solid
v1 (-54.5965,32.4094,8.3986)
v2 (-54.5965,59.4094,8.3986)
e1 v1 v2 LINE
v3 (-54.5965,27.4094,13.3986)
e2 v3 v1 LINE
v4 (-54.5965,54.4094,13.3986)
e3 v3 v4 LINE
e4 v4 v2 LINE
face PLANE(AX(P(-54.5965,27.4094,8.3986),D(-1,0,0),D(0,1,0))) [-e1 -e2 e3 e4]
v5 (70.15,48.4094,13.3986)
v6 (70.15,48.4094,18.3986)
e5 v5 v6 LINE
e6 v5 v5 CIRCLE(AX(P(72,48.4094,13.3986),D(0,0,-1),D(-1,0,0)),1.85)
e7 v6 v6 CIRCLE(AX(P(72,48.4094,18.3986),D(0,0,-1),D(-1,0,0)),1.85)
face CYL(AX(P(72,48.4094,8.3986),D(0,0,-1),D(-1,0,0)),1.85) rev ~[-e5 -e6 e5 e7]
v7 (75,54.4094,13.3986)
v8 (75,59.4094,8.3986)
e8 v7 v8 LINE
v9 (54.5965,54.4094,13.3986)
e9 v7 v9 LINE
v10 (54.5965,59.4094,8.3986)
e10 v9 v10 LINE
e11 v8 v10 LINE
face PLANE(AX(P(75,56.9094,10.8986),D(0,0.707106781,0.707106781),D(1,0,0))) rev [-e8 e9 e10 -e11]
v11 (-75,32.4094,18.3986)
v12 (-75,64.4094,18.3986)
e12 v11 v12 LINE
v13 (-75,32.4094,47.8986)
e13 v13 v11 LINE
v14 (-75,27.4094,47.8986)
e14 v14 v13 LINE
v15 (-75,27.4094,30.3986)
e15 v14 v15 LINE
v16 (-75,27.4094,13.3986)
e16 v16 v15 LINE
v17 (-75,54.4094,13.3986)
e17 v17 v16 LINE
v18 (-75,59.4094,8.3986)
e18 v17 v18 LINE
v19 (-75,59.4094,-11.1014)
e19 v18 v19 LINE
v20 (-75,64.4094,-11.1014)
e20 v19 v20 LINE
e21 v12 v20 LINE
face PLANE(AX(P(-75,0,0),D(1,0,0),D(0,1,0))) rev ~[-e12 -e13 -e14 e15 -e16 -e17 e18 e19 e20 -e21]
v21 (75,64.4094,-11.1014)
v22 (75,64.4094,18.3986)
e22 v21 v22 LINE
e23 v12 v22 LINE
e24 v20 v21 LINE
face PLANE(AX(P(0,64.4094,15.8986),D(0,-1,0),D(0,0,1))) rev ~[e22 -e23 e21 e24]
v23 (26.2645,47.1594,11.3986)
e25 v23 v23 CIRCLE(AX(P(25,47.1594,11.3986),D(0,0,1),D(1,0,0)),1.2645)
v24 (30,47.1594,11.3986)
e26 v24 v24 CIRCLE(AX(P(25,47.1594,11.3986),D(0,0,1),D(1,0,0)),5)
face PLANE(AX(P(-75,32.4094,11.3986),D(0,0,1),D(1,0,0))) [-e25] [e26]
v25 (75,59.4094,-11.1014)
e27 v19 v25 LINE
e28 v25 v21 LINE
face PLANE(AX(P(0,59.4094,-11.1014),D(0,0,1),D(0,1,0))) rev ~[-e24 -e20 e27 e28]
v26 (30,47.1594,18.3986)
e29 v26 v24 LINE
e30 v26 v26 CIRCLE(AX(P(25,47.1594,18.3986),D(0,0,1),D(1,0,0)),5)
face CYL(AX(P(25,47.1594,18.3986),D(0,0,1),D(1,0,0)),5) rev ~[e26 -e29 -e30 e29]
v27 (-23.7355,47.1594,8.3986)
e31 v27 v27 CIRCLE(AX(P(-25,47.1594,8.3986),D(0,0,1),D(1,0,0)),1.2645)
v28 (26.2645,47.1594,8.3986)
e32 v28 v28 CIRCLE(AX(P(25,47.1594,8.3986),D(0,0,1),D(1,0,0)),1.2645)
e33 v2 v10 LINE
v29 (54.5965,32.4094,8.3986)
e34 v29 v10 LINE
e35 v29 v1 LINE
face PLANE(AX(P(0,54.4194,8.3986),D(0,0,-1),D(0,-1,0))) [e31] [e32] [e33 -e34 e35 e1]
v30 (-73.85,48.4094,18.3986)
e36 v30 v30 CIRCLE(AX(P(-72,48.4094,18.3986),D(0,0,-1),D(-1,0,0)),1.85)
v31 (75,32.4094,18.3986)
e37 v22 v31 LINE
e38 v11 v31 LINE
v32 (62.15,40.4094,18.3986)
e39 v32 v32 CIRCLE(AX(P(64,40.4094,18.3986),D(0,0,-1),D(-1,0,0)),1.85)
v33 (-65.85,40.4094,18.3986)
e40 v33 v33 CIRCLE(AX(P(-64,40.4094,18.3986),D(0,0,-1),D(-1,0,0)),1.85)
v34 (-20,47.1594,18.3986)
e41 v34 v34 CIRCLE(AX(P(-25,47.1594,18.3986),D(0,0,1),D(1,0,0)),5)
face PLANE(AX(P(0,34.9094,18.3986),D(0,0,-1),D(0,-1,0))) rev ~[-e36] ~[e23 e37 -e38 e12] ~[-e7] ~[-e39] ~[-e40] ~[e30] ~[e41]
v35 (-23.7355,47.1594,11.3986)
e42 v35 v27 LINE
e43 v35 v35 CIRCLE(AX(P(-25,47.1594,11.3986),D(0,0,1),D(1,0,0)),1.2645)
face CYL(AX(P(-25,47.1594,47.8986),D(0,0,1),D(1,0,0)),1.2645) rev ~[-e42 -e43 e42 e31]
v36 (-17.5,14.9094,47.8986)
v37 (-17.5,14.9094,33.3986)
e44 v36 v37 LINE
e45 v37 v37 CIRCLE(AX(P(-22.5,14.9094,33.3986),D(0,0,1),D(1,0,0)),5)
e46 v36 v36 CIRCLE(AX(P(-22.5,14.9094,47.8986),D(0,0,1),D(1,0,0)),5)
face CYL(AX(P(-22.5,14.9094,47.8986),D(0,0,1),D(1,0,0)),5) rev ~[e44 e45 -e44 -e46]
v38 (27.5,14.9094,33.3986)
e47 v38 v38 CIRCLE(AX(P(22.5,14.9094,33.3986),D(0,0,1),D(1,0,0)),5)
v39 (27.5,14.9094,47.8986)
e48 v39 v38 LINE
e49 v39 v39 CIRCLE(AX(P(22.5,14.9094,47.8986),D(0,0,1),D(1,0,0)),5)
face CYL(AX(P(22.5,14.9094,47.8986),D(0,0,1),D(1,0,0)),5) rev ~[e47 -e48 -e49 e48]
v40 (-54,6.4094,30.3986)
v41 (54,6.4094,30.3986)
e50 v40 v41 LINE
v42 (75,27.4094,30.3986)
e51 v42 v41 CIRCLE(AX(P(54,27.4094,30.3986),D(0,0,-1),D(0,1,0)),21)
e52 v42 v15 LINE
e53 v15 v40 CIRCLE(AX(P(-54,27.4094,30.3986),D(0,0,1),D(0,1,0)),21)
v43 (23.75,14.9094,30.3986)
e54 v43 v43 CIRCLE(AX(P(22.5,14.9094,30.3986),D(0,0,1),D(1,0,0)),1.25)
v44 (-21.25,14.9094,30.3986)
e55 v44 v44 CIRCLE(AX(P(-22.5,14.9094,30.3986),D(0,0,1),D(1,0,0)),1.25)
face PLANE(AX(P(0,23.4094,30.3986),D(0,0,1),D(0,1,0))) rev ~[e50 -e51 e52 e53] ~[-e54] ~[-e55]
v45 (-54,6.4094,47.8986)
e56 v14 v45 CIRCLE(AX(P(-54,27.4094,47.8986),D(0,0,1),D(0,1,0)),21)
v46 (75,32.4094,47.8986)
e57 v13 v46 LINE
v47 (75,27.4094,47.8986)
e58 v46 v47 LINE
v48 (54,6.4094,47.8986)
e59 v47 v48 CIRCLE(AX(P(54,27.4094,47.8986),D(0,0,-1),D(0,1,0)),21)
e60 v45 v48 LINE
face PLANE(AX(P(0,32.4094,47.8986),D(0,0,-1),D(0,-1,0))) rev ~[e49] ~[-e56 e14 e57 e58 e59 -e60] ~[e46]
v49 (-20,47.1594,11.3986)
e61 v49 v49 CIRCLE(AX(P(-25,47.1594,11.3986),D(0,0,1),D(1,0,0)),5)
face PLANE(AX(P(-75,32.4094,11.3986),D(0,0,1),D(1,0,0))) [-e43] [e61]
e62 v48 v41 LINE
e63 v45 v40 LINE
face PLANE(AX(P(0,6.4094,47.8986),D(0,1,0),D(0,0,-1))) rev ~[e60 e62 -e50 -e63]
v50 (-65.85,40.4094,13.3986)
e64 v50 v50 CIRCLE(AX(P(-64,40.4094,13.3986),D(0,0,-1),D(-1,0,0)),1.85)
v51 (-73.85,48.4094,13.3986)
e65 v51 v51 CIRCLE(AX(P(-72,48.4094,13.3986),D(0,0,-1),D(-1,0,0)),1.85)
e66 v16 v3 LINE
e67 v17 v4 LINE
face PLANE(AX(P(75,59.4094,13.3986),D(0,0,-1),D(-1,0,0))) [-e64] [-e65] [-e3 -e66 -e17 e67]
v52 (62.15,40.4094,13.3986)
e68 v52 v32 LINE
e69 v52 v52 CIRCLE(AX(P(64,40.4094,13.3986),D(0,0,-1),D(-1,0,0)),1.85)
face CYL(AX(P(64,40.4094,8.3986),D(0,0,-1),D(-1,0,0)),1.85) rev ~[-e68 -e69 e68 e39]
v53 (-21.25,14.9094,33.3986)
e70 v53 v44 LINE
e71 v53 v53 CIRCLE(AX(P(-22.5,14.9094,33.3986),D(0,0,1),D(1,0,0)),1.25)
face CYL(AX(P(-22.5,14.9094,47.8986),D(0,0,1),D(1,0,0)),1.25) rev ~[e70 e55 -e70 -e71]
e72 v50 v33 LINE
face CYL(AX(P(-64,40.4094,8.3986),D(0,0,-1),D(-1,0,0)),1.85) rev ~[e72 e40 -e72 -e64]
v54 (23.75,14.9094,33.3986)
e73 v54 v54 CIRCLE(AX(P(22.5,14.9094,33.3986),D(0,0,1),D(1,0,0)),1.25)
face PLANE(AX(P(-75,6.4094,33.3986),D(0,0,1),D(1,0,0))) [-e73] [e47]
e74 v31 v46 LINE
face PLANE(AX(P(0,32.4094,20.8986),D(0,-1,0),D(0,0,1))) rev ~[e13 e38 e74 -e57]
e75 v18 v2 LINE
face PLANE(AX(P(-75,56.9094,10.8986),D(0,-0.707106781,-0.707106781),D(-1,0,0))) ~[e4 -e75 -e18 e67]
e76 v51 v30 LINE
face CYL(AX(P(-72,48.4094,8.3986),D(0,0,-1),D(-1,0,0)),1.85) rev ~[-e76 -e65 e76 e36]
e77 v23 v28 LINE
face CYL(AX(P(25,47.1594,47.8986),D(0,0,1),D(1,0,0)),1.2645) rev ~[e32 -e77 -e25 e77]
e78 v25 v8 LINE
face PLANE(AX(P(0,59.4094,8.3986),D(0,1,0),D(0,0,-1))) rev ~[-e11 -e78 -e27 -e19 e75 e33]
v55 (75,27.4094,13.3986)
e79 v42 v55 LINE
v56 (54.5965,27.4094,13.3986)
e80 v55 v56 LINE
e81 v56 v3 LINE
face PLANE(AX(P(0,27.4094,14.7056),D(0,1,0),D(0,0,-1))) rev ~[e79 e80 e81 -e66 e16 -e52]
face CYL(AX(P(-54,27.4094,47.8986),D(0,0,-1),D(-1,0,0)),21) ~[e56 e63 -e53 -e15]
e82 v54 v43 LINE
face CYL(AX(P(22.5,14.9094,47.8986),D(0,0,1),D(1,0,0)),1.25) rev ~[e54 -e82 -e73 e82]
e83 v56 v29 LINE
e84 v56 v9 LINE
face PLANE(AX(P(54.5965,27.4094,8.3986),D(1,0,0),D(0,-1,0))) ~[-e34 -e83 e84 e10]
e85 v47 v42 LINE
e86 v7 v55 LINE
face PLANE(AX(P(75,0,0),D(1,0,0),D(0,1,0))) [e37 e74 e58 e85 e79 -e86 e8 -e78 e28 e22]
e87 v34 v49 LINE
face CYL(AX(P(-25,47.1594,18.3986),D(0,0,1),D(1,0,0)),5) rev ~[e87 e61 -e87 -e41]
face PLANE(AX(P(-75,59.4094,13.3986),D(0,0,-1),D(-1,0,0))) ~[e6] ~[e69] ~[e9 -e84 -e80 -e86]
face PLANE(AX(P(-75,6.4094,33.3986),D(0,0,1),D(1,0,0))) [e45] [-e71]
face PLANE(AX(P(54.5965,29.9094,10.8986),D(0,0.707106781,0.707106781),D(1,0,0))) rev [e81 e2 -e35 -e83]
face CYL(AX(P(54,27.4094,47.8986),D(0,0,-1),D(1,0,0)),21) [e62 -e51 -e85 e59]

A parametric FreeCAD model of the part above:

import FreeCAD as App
import Part
import Sketcher

V = App.Vector


def edges_at(feature, points):
    """Names of the edges that pass closest to the given points."""
    edges = feature.Shape.Edges
    near = lambda p: min(range(len(edges)), key=lambda i: edges[i].distToShape(Part.Vertex(*p))[0])
    return sorted({f"Edge{near(p) + 1}" for p in points})


def add_polygon(sketch, points):
    """Adds a closed chain of lines whose ends are joined by coincident constraints."""
    first, n = sketch.GeometryCount, len(points)
    for a, b in zip(points, points[1:] + points[:1]):
        sketch.addGeometry(Part.LineSegment(App.Vector(*a, 0), App.Vector(*b, 0)), False)
    for i in range(n):
        sketch.addConstraint(Sketcher.Constraint("Coincident", first + i, 2, first + (i + 1) % n, 1))

doc = App.newDocument("Part")
body = doc.addObject("PartDesign::Body", "Body")

sketch1 = body.newObject("Sketcher::SketchObject", "Sketch")
sketch1.AttachmentSupport = (doc.getObject("YZ_Plane"), [""])
sketch1.MapMode = "FlatFace"
add_polygon(sketch1, [(59, 8), (59, -11), (64, -11), (64, 18), (32, 18), (32, 48), (6, 48), (6, 30), (27, 30), (27, 8)])
sketch1.addConstraint([
    Sketcher.Constraint("Vertical", 0),
    Sketcher.Constraint("Horizontal", 1),
    Sketcher.Constraint("Vertical", 2),
    Sketcher.Constraint("Horizontal", 3),
    Sketcher.Constraint("Vertical", 4),
    Sketcher.Constraint("Horizontal", 5),
    Sketcher.Constraint("Vertical", 6),
    Sketcher.Constraint("Horizontal", 7),
    Sketcher.Constraint("Vertical", 8),
    Sketcher.Constraint("Horizontal", 9),
    Sketcher.Constraint("Equal", 3, 9),
    Sketcher.Constraint("Equal", 2, 4),
    Sketcher.Constraint("DistanceX", 1, 1, 1, 2, 5.0),
    Sketcher.Constraint("DistanceX", 3, 2, 3, 1, 32.0),
    Sketcher.Constraint("DistanceX", 5, 2, 5, 1, 26.0),
    Sketcher.Constraint("DistanceY", 8, 2, 8, 1, 22.0),
    Sketcher.Constraint("DistanceY", 0, 2, 0, 1, 19.5),
    Sketcher.Constraint("DistanceY", 2, 1, 2, 2, 29.5),
    Sketcher.Constraint("DistanceX", -1, 1, 0, 2, 59.4094),
    Sketcher.Constraint("DistanceY", 0, 2, -1, 1, 11.1014),
])
pad1 = body.newObject("PartDesign::Pad", "Pad")
pad1.Profile = sketch1
pad1.Length = 150
pad1.Midplane = True

sketch2 = body.newObject("Sketcher::SketchObject", "Sketch001")
sketch2.AttachmentSupport = (doc.getObject("XY_Plane"), [""])
sketch2.MapMode = "FlatFace"
sketch2.AttachmentOffset = App.Placement(V(0, 0, 8.3986), App.Rotation())
sketch2.addGeometry([
    Part.Circle(V(-72, 48.4, 0), V(0, 0, 1), 1.9),
    Part.Circle(V(72, 48.4, 0), V(0, 0, 1), 1.9),
    Part.Circle(V(64, 40.4, 0), V(0, 0, 1), 1.9),
    Part.Circle(V(-64, 40.4, 0), V(0, 0, 1), 1.9),
], False)
sketch2.addConstraint([
    Sketcher.Constraint("Equal", 0, 1),
    Sketcher.Constraint("Equal", 1, 2),
    Sketcher.Constraint("Equal", 2, 3),
    Sketcher.Constraint("Symmetric", 0, 3, 1, 3, -2),
    Sketcher.Constraint("Symmetric", 2, 3, 3, 3, -2),
    Sketcher.Constraint("Diameter", 0, 3.7),
    Sketcher.Constraint("DistanceX", 0, 3, -1, 1, 72.0),
    Sketcher.Constraint("DistanceX", -1, 1, 2, 3, 64.0),
    Sketcher.Constraint("DistanceY", 2, 3, 1, 3, 8.0),
    Sketcher.Constraint("DistanceY", -1, 1, 0, 3, 48.4094),
])
pocket1 = body.newObject("PartDesign::Pocket", "Pocket")
pocket1.Profile = sketch2
pocket1.Type = "ThroughAll"
pocket1.Reversed = True

sketch3 = body.newObject("Sketcher::SketchObject", "Sketch002")
sketch3.AttachmentSupport = (doc.getObject("XY_Plane"), [""])
sketch3.MapMode = "FlatFace"
sketch3.AttachmentOffset = App.Placement(V(0, 0, 8.3986), App.Rotation())
add_polygon(sketch3, [(-75, 27), (-75, 59), (-55, 59), (-55, 27)])
sketch3.addConstraint([
    Sketcher.Constraint("Vertical", 0),
    Sketcher.Constraint("Horizontal", 1),
    Sketcher.Constraint("Vertical", 2),
    Sketcher.Constraint("Horizontal", 3),
    Sketcher.Constraint("DistanceY", 0, 1, 0, 2, 32.0),
    Sketcher.Constraint("DistanceX", 0, 2, -1, 1, 75.0),
    Sketcher.Constraint("DistanceX", 1, 1, 1, 2, 20.4035),
    Sketcher.Constraint("DistanceY", -1, 1, 0, 2, 59.4094),
])
pocket2 = body.newObject("PartDesign::Pocket", "Pocket001")
pocket2.Profile = sketch3
pocket2.Length = 5
pocket2.Reversed = True
doc.recompute()

mirrored = body.newObject("PartDesign::Mirrored", "Mirrored")
mirrored.Originals = [pocket2]
mirrored.MirrorPlane = (doc.getObject("YZ_Plane"), [""])
body.Tip = mirrored

sketch4 = body.newObject("Sketcher::SketchObject", "Sketch003")
sketch4.AttachmentSupport = (doc.getObject("XY_Plane"), [""])
sketch4.MapMode = "FlatFace"
sketch4.AttachmentOffset = App.Placement(V(0, 0, 47.8986), App.Rotation())
sketch4.addGeometry([
    Part.Circle(V(22.5, 14.9, 0), V(0, 0, 1), 1.2),
    Part.Circle(V(-22.5, 14.9, 0), V(0, 0, 1), 1.2),
    Part.Circle(V(25, 47.2, 0), V(0, 0, 1), 1.3),
    Part.Circle(V(-25, 47.2, 0), V(0, 0, 1), 1.3),
], False)
sketch4.addConstraint([
    Sketcher.Constraint("Equal", 0, 1),
    Sketcher.Constraint("Equal", 2, 3),
    Sketcher.Constraint("Symmetric", 0, 3, 1, 3, -2),
    Sketcher.Constraint("Symmetric", 2, 3, 3, 3, -2),
    Sketcher.Constraint("Diameter", 0, 2.5),
    Sketcher.Constraint("Diameter", 2, 2.529),
    Sketcher.Constraint("DistanceX", -1, 1, 2, 3, 25.0),
    Sketcher.Constraint("DistanceX", 1, 3, 0, 3, 45.0),
    Sketcher.Constraint("DistanceY", 0, 3, 2, 3, 32.25),
    Sketcher.Constraint("DistanceY", -1, 1, 0, 3, 14.9094),
])
pocket3 = body.newObject("PartDesign::Pocket", "Pocket002")
pocket3.Profile = sketch4
pocket3.Type = "ThroughAll"

sketch5 = body.newObject("Sketcher::SketchObject", "Sketch004")
sketch5.AttachmentSupport = (doc.getObject("XY_Plane"), [""])
sketch5.MapMode = "FlatFace"
sketch5.AttachmentOffset = App.Placement(V(0, 0, 47.8986), App.Rotation())
sketch5.addGeometry([
    Part.Circle(V(22, 15, 0), V(0, 0, 1), 5),
    Part.Circle(V(-22, 15, 0), V(0, 0, 1), 5),
], False)
sketch5.addConstraint([
    Sketcher.Constraint("Equal", 0, 1),
    Sketcher.Constraint("Symmetric", 0, 3, 1, 3, -2),
    Sketcher.Constraint("Diameter", 0, 10.0),
    Sketcher.Constraint("DistanceX", 1, 3, 0, 3, 45.0),
    Sketcher.Constraint("DistanceY", -1, 1, 0, 3, 14.9094),
])
pocket4 = body.newObject("PartDesign::Pocket", "Pocket003")
pocket4.Profile = sketch5
pocket4.Length = 14.5

sketch6 = body.newObject("Sketcher::SketchObject", "Sketch005")
sketch6.AttachmentSupport = (doc.getObject("XY_Plane"), [""])
sketch6.MapMode = "FlatFace"
sketch6.AttachmentOffset = App.Placement(V(0, 0, 18.3986), App.Rotation())
sketch6.addGeometry([
    Part.Circle(V(25, 47, 0), V(0, 0, 1), 5),
    Part.Circle(V(-25, 47, 0), V(0, 0, 1), 5),
], False)
sketch6.addConstraint([
    Sketcher.Constraint("Equal", 0, 1),
    Sketcher.Constraint("Symmetric", 0, 3, 1, 3, -2),
    Sketcher.Constraint("Diameter", 0, 10.0),
    Sketcher.Constraint("DistanceX", -1, 1, 0, 3, 25.0),
    Sketcher.Constraint("DistanceY", -1, 1, 0, 3, 47.1594),
])
pocket5 = body.newObject("PartDesign::Pocket", "Pocket004")
pocket5.Profile = sketch6
pocket5.Length = 7
doc.recompute()

fillet = body.newObject("PartDesign::Fillet", "Fillet")
fillet.Base = (pocket5, edges_at(pocket5, [(75, 6.409, 39.149), (-75, 6.409, 39.149)]))
fillet.Radius = 21
doc.recompute()

chamfer = body.newObject("PartDesign::Chamfer", "Chamfer")
chamfer.Base = (fillet, edges_at(fillet, [(64.798, 59.409, 13.399), (-64.798, 59.409, 13.399)]))
chamfer.Size = 5
doc.recompute()

chamfer2 = body.newObject("PartDesign::Chamfer", "Chamfer001")
chamfer2.Base = (chamfer, edges_at(chamfer, [(0, 27.409, 8.399)]))
chamfer2.Size = 5

doc.recompute()
